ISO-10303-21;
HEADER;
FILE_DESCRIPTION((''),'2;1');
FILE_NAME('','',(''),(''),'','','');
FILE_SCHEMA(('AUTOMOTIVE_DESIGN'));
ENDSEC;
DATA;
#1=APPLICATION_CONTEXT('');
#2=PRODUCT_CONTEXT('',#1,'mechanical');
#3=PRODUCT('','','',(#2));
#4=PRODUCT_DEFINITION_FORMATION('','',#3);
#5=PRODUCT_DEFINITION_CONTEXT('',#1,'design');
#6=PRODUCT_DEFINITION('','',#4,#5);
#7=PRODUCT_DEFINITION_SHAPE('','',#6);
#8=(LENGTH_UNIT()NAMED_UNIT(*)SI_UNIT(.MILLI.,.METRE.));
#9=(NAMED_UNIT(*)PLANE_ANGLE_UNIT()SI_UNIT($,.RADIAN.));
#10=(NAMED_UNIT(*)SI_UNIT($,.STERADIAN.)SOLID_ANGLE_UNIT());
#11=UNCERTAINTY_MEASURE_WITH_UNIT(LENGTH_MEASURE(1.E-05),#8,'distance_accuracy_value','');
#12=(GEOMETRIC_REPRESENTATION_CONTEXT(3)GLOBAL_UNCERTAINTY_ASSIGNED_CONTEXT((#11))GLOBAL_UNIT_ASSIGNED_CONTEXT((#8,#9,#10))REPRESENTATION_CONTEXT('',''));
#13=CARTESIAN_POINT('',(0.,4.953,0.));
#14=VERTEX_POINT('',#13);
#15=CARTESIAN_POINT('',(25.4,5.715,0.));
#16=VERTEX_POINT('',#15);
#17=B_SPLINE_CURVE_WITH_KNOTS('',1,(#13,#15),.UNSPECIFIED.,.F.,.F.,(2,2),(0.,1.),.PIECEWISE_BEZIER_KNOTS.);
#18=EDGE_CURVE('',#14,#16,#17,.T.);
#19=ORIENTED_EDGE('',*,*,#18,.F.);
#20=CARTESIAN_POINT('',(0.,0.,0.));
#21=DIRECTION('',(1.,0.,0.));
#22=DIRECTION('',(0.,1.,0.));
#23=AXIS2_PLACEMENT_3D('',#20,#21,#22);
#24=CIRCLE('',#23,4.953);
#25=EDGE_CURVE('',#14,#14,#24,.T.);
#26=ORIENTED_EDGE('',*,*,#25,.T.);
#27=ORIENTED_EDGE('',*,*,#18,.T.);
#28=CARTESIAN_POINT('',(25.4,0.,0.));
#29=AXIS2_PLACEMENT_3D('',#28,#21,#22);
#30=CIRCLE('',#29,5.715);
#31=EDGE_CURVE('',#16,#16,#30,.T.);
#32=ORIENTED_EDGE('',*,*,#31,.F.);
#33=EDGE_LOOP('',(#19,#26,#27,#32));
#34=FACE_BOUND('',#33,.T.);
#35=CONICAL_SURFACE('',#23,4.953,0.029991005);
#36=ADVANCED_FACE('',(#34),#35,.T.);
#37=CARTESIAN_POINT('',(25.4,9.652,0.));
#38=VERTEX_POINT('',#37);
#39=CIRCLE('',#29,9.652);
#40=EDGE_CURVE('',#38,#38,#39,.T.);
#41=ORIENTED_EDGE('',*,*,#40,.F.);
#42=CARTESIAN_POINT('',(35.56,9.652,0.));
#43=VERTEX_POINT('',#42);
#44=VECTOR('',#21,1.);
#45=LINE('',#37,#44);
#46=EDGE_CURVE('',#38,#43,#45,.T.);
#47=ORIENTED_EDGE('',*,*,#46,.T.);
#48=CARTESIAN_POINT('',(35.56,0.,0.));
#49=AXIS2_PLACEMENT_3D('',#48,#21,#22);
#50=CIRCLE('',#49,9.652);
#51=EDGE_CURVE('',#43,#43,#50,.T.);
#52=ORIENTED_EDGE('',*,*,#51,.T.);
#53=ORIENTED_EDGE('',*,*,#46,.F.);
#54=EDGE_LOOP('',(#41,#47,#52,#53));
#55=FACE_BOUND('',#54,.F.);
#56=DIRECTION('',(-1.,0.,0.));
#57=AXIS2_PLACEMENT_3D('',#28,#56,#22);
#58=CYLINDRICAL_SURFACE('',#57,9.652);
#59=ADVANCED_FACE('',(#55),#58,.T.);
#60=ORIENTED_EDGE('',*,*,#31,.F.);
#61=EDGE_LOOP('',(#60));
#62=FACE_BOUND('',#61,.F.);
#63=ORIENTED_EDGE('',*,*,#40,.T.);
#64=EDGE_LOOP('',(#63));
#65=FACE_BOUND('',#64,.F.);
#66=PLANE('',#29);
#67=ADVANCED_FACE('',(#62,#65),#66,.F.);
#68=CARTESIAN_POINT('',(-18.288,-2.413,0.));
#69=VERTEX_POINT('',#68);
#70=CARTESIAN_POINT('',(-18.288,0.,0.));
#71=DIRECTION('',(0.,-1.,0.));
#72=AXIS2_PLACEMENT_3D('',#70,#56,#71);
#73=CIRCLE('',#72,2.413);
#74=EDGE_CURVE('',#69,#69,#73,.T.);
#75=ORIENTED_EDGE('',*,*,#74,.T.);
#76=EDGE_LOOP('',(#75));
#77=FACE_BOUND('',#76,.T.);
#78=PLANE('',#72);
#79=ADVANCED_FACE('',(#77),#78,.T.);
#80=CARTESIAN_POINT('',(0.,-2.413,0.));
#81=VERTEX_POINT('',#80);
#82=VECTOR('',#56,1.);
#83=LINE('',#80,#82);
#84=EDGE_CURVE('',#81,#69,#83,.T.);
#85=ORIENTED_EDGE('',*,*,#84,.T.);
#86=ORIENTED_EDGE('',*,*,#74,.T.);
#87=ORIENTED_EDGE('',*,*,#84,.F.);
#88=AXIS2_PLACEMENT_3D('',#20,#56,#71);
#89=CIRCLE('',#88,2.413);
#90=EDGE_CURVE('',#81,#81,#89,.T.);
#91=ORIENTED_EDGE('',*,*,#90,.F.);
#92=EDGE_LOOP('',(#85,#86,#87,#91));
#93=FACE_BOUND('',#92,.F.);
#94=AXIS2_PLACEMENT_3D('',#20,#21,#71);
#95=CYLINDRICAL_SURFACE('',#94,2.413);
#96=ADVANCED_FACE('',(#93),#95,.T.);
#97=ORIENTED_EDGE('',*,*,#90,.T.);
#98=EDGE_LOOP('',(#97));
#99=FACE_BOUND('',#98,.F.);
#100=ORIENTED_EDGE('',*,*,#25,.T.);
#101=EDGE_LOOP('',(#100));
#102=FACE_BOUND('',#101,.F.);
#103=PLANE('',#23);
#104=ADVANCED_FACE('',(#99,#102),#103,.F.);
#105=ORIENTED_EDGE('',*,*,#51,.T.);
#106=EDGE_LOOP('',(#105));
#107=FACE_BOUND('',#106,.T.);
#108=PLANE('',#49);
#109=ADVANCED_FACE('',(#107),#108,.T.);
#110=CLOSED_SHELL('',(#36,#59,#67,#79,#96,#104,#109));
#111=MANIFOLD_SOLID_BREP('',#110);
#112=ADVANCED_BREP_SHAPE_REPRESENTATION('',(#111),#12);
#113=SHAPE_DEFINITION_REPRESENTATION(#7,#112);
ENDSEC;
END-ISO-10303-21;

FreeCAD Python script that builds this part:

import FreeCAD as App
import Part
import Sketcher
Q = App.Units.Quantity

doc = App.newDocument("Part")
body = doc.addObject("PartDesign::Body", "Body")

# Sketch on YZ plane
sketch1 = body.newObject("Sketcher::SketchObject", "Sketch")
sketch1.AttachmentSupport = (doc.getObject("YZ_Plane"), [""])
sketch1.MapMode = "FlatFace"
sketch1.addGeometry(Part.Circle(App.Vector(0, 0, 0), App.Vector(0, 0, 1), 5), False)
sketch1.addConstraint(Sketcher.Constraint("Coincident", 0, 3, -1, 1))
sketch1.addConstraint(Sketcher.Constraint("Diameter", 0, Q("0.39 in")))

# Sketch on YZ plane
sketch2 = body.newObject("Sketcher::SketchObject", "Sketch001")
sketch2.AttachmentSupport = (doc.getObject("YZ_Plane"), [""])
sketch2.MapMode = "FlatFace"
sketch2.AttachmentOffset = App.Placement(App.Vector(0, 0, 1 * 25.4), App.Rotation())
sketch2.addGeometry(Part.Circle(App.Vector(0, 0, 0), App.Vector(0, 0, 1), 6), False)
sketch2.addConstraint(Sketcher.Constraint("Coincident", 0, 3, -1, 1))
sketch2.addConstraint(Sketcher.Constraint("Diameter", 0, Q("0.45 in")))

additiveloft = body.newObject("PartDesign::AdditiveLoft", "AdditiveLoft")
additiveloft.Profile = sketch1
additiveloft.Sections = [sketch2]

# Sketch on YZ plane
sketch3 = body.newObject("Sketcher::SketchObject", "Sketch002")
sketch3.AttachmentSupport = (doc.getObject("YZ_Plane"), [""])
sketch3.MapMode = "FlatFace"
sketch3.addGeometry(Part.Circle(App.Vector(0, 0, 0), App.Vector(0, 0, 1), 2.4), False)
sketch3.addConstraint(Sketcher.Constraint("Coincident", 0, 3, -1, 1))
sketch3.addConstraint(Sketcher.Constraint("Diameter", 0, Q("0.19 in")))
pad1 = body.newObject("PartDesign::Pad", "Pad")
pad1.Profile = sketch3
pad1.Length = Q("0.72 in")
pad1.Reversed = True

# Sketch on YZ plane
sketch4 = body.newObject("Sketcher::SketchObject", "Sketch003")
sketch4.AttachmentSupport = (doc.getObject("YZ_Plane"), [""])
sketch4.MapMode = "FlatFace"
sketch4.AttachmentOffset = App.Placement(App.Vector(0, 0, 1 * 25.4), App.Rotation())
sketch4.addGeometry(Part.Circle(App.Vector(0, 0, 0), App.Vector(0, 0, 1), 10), False)
sketch4.addConstraint(Sketcher.Constraint("Coincident", 0, 3, -1, 1))
sketch4.addConstraint(Sketcher.Constraint("Diameter", 0, Q("0.76 in")))
pad2 = body.newObject("PartDesign::Pad", "Pad001")
pad2.Profile = sketch4
pad2.Length = Q("0.4 in")

doc.recompute()
